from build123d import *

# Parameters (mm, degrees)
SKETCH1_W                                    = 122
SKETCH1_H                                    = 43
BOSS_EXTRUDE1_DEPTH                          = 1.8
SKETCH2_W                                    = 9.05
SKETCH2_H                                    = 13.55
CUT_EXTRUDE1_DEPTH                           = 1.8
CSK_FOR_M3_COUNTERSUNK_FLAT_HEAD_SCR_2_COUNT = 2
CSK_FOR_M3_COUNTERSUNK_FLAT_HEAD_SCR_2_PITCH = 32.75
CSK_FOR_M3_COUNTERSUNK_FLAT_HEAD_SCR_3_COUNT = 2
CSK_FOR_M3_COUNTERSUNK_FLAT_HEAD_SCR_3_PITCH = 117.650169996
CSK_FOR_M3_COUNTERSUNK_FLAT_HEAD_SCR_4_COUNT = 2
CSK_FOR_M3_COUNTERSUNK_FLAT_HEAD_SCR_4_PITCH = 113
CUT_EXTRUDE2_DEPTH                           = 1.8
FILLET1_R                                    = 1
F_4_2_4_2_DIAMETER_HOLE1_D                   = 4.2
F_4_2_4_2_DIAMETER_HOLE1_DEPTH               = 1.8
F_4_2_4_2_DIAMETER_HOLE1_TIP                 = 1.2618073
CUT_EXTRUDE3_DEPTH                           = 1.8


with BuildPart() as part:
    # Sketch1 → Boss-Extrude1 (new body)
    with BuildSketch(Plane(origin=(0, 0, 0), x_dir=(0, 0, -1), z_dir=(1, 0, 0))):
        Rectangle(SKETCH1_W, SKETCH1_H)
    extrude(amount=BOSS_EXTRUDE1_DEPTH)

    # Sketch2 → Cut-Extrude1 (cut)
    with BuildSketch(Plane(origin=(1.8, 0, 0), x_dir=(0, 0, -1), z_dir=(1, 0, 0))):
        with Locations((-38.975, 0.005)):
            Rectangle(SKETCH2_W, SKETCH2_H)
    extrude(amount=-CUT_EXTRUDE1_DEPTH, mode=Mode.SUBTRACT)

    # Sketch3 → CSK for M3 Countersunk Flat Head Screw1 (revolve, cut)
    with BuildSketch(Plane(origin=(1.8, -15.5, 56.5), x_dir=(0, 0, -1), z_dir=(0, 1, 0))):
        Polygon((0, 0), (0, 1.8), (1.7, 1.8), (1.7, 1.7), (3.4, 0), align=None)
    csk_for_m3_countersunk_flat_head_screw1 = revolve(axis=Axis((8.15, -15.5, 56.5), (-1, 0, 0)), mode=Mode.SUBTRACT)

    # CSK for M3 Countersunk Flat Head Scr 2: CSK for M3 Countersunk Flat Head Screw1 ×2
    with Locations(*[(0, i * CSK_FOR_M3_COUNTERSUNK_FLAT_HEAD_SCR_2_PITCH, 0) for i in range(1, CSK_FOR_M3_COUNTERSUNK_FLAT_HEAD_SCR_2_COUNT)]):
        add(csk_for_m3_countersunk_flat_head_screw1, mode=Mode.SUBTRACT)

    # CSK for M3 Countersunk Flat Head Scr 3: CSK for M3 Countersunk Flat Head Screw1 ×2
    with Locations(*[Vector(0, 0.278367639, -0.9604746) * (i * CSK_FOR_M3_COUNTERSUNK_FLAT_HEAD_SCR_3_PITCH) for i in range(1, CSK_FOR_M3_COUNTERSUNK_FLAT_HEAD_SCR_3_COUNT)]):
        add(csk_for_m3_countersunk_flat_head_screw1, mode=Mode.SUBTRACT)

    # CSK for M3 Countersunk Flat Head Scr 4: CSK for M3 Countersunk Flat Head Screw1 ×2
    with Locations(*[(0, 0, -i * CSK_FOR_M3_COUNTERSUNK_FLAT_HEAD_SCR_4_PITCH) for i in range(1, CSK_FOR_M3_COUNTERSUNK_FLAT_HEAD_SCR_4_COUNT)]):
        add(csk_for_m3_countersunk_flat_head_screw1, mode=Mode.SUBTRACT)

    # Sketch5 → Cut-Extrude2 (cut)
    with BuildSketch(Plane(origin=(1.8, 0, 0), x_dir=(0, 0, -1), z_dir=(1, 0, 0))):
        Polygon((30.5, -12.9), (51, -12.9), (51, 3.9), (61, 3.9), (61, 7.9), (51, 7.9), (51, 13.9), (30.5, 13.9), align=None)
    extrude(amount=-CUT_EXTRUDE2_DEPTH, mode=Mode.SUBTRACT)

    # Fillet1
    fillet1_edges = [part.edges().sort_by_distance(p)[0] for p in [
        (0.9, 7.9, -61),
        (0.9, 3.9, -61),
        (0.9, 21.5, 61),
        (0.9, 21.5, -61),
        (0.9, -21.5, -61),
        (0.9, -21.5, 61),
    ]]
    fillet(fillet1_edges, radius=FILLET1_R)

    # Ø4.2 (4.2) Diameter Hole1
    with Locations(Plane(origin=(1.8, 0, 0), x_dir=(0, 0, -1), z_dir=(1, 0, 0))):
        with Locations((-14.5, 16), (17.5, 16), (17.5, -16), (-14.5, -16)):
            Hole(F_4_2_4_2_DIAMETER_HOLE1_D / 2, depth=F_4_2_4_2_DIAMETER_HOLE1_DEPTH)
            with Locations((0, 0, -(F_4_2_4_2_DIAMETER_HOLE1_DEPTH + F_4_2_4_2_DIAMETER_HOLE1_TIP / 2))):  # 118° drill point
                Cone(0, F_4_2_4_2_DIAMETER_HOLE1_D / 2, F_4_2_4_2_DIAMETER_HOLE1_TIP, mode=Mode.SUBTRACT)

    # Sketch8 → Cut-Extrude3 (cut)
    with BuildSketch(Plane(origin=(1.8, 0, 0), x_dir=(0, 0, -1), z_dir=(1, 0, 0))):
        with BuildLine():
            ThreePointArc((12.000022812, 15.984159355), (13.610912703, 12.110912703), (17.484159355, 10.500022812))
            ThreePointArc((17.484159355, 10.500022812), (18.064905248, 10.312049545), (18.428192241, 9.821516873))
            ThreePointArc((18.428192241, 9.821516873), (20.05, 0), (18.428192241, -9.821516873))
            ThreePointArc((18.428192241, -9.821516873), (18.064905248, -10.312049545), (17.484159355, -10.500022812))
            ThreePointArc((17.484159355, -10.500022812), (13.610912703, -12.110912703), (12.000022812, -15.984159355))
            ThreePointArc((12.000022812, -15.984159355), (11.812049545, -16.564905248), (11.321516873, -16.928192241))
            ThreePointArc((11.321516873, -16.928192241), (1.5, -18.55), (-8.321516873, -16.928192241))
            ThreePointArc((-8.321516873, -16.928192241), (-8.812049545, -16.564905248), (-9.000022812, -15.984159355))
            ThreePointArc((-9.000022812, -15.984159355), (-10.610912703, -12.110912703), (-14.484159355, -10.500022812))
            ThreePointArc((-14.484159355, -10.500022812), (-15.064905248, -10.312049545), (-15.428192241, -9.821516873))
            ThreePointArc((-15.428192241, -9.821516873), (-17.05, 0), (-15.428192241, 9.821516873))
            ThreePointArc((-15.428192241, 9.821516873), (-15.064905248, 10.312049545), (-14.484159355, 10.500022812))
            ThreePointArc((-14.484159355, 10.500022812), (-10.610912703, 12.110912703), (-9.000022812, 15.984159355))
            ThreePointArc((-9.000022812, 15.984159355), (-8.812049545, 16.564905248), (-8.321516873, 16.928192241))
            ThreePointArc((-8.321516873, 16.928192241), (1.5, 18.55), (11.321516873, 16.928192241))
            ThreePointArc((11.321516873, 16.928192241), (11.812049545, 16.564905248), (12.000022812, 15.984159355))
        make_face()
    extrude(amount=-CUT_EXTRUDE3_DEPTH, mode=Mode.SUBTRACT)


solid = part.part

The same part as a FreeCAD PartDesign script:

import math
import FreeCAD as App
import Part
import Sketcher
Q = App.Units.Quantity


def edges_at(feature, points):
    """Names of the edges that pass closest to the given points."""
    edges = feature.Shape.Edges
    near = lambda p: min(range(len(edges)), key=lambda i: edges[i].distToShape(Part.Vertex(*p))[0])
    return sorted({f"Edge{near(p) + 1}" for p in points})


def add_polygon(sketch, points):
    """Adds a closed chain of lines whose ends are joined by coincident constraints."""
    first, n = sketch.GeometryCount, len(points)
    for a, b in zip(points, points[1:] + points[:1]):
        sketch.addGeometry(Part.LineSegment(App.Vector(*a, 0), App.Vector(*b, 0)), False)
    for i in range(n):
        sketch.addConstraint(Sketcher.Constraint("Coincident", first + i, 2, first + (i + 1) % n, 1))

doc = App.newDocument("Part")
body = doc.addObject("PartDesign::Body", "Body")

# Sketch on YZ plane
sketch1 = body.newObject("Sketcher::SketchObject", "Sketch")
sketch1.AttachmentSupport = (doc.getObject("YZ_Plane"), [""])
sketch1.MapMode = "FlatFace"
add_polygon(sketch1, [(22, 61), (-22, 61), (-22, -61), (22, -61)])  # lines 0-3
sketch1.addConstraint([
    Sketcher.Constraint("Horizontal", 0),
    Sketcher.Constraint("Vertical", 1),
    Sketcher.Constraint("Horizontal", 2),
    Sketcher.Constraint("Vertical", 3),
    Sketcher.Constraint("Symmetric", 0, 2, 2, 2, -1, 1),
    Sketcher.Constraint("DistanceX", 0, 2, 0, 1, Q("43 mm")),
    Sketcher.Constraint("DistanceY", 1, 2, 1, 1, Q("122 mm")),
])
pad1 = body.newObject("PartDesign::Pad", "Pad")
pad1.Profile = sketch1
pad1.Length = 1.8

# Sketch on YZ plane
sketch2 = body.newObject("Sketcher::SketchObject", "Sketch001")
sketch2.AttachmentSupport = (doc.getObject("YZ_Plane"), [""])
sketch2.MapMode = "FlatFace"
sketch2.AttachmentOffset = App.Placement(App.Vector(0, 0, 1.8), App.Rotation())
add_polygon(sketch2, [(7, 44), (-7, 44), (-7, 34), (7, 34)])  # lines 0-3
sketch2.addConstraint([
    Sketcher.Constraint("Horizontal", 0),
    Sketcher.Constraint("Vertical", 1),
    Sketcher.Constraint("Horizontal", 2),
    Sketcher.Constraint("Vertical", 3),
    Sketcher.Constraint("DistanceX", 0, 2, 0, 1, Q("13.55 mm")),
    Sketcher.Constraint("DistanceY", 1, 2, 1, 1, Q("9.05 mm")),
    Sketcher.Constraint("DistanceY", -1, 1, 0, 2, Q("43.5 mm")),
    Sketcher.Constraint("DistanceX", 0, 2, -1, 1, Q("6.77 mm")),
])
pocket1 = body.newObject("PartDesign::Pocket", "Pocket")
pocket1.Profile = sketch2
pocket1.Length = 1.8

# Sketch on XZ plane
sketch3 = body.newObject("Sketcher::SketchObject", "Sketch002")
sketch3.AttachmentSupport = (doc.getObject("XZ_Plane"), [""])
sketch3.MapMode = "FlatFace"
sketch3.AttachmentOffset = App.Placement(App.Vector(0, 0, 15.5), App.Rotation())
add_polygon(sketch3, [(0, 56.5), (1.8, 56.5), (1.8, 53.1), (0.1, 54.8), (0, 54.8)])  # lines 0-4
sketch3.addGeometry(Part.LineSegment(App.Vector(1.8, 56.5, 0), App.Vector(0, 56.5, 0)), True)  # axis
sketch3.addConstraint([
    Sketcher.Constraint("Horizontal", 0),
    Sketcher.Constraint("Vertical", 1),
    Sketcher.Constraint("Horizontal", 3),
    Sketcher.Constraint("Vertical", 4),
    Sketcher.Constraint("Horizontal", 5),
    Sketcher.Constraint("Coincident", 5, 1, 0, 2),
    Sketcher.Constraint("PointOnObject", 3, 2, -2),
    Sketcher.Constraint("PointOnObject", 5, 2, -2),
    Sketcher.Constraint("Angle", 2, Q("135 deg")),
    Sketcher.Constraint("DistanceX", 0, 1, 0, 2, Q("1.8 mm")),
    Sketcher.Constraint("DistanceX", 3, 2, 3, 1, Q("0.1 mm")),
    Sketcher.Constraint("DistanceY", 1, 2, 1, 1, Q("3.4 mm")),
    Sketcher.Constraint("DistanceY", -1, 1, 0, 2, Q("56.5 mm")),
])
groove = body.newObject("PartDesign::Groove", "Groove")
groove.Profile = sketch3
groove.ReferenceAxis = (sketch3, ["Axis0"])
groove.Angle = 360
doc.recompute()

linearpattern = body.newObject("PartDesign::LinearPattern", "LinearPattern")
linearpattern.Originals = [groove]
linearpattern.Direction = (doc.getObject("Y_Axis"), [""])
linearpattern.Mode = "offset"
linearpattern.Offset = 32.75
linearpattern.Occurrences = 2
body.Tip = linearpattern
doc.recompute()

datumline = body.newObject("PartDesign::Line", "DatumLine")
datumline.Placement = App.Placement(App.Vector(0, 0, 0), App.Rotation(App.Vector(0, 0, 1), App.Vector(0, 0.278367639, -0.9604746)))
linearpattern2 = body.newObject("PartDesign::LinearPattern", "LinearPattern001")
linearpattern2.Originals = [groove]
linearpattern2.Direction = (datumline, [""])
linearpattern2.Mode = "offset"
linearpattern2.Offset = 117.65017
linearpattern2.Occurrences = 2
body.Tip = linearpattern2
doc.recompute()

linearpattern3 = body.newObject("PartDesign::LinearPattern", "LinearPattern002")
linearpattern3.Originals = [groove]
linearpattern3.Direction = (doc.getObject("Z_Axis"), [""])
linearpattern3.Mode = "offset"
linearpattern3.Offset = 113
linearpattern3.Occurrences = 2
linearpattern3.Reversed = True
body.Tip = linearpattern3

# Sketch on YZ plane
sketch4 = body.newObject("Sketcher::SketchObject", "Sketch003")
sketch4.AttachmentSupport = (doc.getObject("YZ_Plane"), [""])
sketch4.MapMode = "FlatFace"
sketch4.AttachmentOffset = App.Placement(App.Vector(0, 0, 1.8), App.Rotation())
add_polygon(sketch4, [(-12.9, -30.5), (-12.9, -51), (3.9, -51), (3.9, -61), (7.9, -61), (7.9, -51), (13.9, -51), (13.9, -30.5)])  # lines 0-7
sketch4.addConstraint([
    Sketcher.Constraint("Vertical", 0),
    Sketcher.Constraint("Horizontal", 1),
    Sketcher.Constraint("Vertical", 2),
    Sketcher.Constraint("Horizontal", 3),
    Sketcher.Constraint("Vertical", 4),
    Sketcher.Constraint("Horizontal", 5),
    Sketcher.Constraint("Vertical", 6),
    Sketcher.Constraint("Horizontal", 7),
    Sketcher.Constraint("Horizontal", 1, 2, 4, 2),
    Sketcher.Constraint("DistanceX", 3, 1, 3, 2, Q("4 mm")),
    Sketcher.Constraint("DistanceX", 5, 1, 5, 2, Q("6 mm")),
    Sketcher.Constraint("DistanceY", 2, 2, 2, 1, Q("10 mm")),
    Sketcher.Constraint("DistanceX", 1, 1, 1, 2, Q("16.8 mm")),
    Sketcher.Constraint("DistanceY", 0, 2, 0, 1, Q("20.5 mm")),
    Sketcher.Constraint("DistanceY", 0, 2, -1, 1, Q("51 mm")),
    Sketcher.Constraint("DistanceX", 0, 2, -1, 1, Q("12.9 mm")),
])
pocket2 = body.newObject("PartDesign::Pocket", "Pocket001")
pocket2.Profile = sketch4
pocket2.Length = 1.8
doc.recompute()

fillet = body.newObject("PartDesign::Fillet", "Fillet")
fillet.Base = (pocket2, edges_at(pocket2, [
    (0.9, 7.9, -61),
    (0.9, 3.9, -61),
    (0.9, 21.5, 61),
    (0.9, 21.5, -61),
    (0.9, -21.5, -61),
    (0.9, -21.5, 61),
]))
fillet.Radius = 1

# Sketch on YZ plane
sketch5 = body.newObject("Sketcher::SketchObject", "Sketch004")
sketch5.AttachmentSupport = (doc.getObject("YZ_Plane"), [""])
sketch5.MapMode = "FlatFace"
sketch5.AttachmentOffset = App.Placement(App.Vector(0, 0, 1.8), App.Rotation())
sketch5.addGeometry([
    Part.Circle(App.Vector(16, 14.5, 0), App.Vector(0, 0, 1), 2.1),
    Part.Circle(App.Vector(16, -17.5, 0), App.Vector(0, 0, 1), 2.1),
    Part.Circle(App.Vector(-16, -17.5, 0), App.Vector(0, 0, 1), 2.1),
    Part.Circle(App.Vector(-16, 14.5, 0), App.Vector(0, 0, 1), 2.1),
], False)
sketch5.addConstraint([
    Sketcher.Constraint("Equal", 0, 1),
    Sketcher.Constraint("Equal", 1, 2),
    Sketcher.Constraint("Equal", 2, 3),
    Sketcher.Constraint("Symmetric", 1, 3, 2, 3, -2),
    Sketcher.Constraint("Symmetric", 0, 3, 3, 3, -2),
    Sketcher.Constraint("Vertical", 0, 3, 1, 3),
    Sketcher.Constraint("Diameter", 0, Q("4.2 mm")),
    Sketcher.Constraint("DistanceX", -1, 1, 0, 3, Q("16 mm")),
    Sketcher.Constraint("DistanceY", 1, 3, 0, 3, Q("32 mm")),
    Sketcher.Constraint("DistanceY", -1, 1, 0, 3, Q("14.5 mm")),
])
doc.recompute()
hole = body.newObject("PartDesign::Hole", "Hole")
hole.Profile = sketch5
hole.ThreadType = "None"
hole.Diameter = 4.2
hole.DepthType = "Dimension"
hole.Depth = 1.8
hole.DrillPoint = "Angled"
hole.DrillPointAngle = 118

# Sketch on YZ plane
sketch6 = body.newObject("Sketcher::SketchObject", "Sketch005")
sketch6.AttachmentSupport = (doc.getObject("YZ_Plane"), [""])
sketch6.MapMode = "FlatFace"
sketch6.AttachmentOffset = App.Placement(App.Vector(0, 0, 1.8), App.Rotation())
sketch6.addGeometry([
    Part.ArcOfCircle(Part.Circle(App.Vector(16, -17.5, 0), App.Vector(0, 0, 1), 5.5), math.radians(90.165019), math.radians(179.834981)),  # 0
    Part.ArcOfCircle(Part.Circle(App.Vector(15.981279, -11.000027, 0), App.Vector(0, 0, 1), 1), math.radians(-89.834981), math.radians(-18.753053)),  # 1
    Part.ArcOfCircle(Part.Circle(App.Vector(-12, -1.5, 0), App.Vector(0, 0, 1), 30.55), math.radians(-18.753053), math.radians(18.753053)),  # 2
    Part.ArcOfCircle(Part.Circle(App.Vector(15.981279, 8.000027, 0), App.Vector(0, 0, 1), 1), math.radians(18.753053), math.radians(89.834981)),  # 3
    Part.ArcOfCircle(Part.Circle(App.Vector(16, 14.5, 0), App.Vector(0, 0, 1), 5.5), math.radians(-179.834981), math.radians(-90.165019)),  # 4
    Part.ArcOfCircle(Part.Circle(App.Vector(9.500027, 14.481279, 0), App.Vector(0, 0, 1), 1), math.radians(0.165019), math.radians(71.246947)),  # 5
    Part.ArcOfCircle(Part.Circle(App.Vector(0, -13.5, 0), App.Vector(0, 0, 1), 30.55), math.radians(71.246947), math.radians(108.753053)),  # 6
    Part.ArcOfCircle(Part.Circle(App.Vector(-9.500027, 14.481279, 0), App.Vector(0, 0, 1), 1), math.radians(108.753053), math.radians(179.834981)),  # 7
    Part.ArcOfCircle(Part.Circle(App.Vector(-16, 14.5, 0), App.Vector(0, 0, 1), 5.5), math.radians(-89.834981), math.radians(-0.165019)),  # 8
    Part.ArcOfCircle(Part.Circle(App.Vector(-15.981279, 8.000027, 0), App.Vector(0, 0, 1), 1), math.radians(90.165019), math.radians(161.246947)),  # 9
    Part.ArcOfCircle(Part.Circle(App.Vector(12, -1.5, 0), App.Vector(0, 0, 1), 30.55), math.radians(161.246947), math.radians(198.753053)),  # 10
    Part.ArcOfCircle(Part.Circle(App.Vector(-15.981279, -11.000027, 0), App.Vector(0, 0, 1), 1), math.radians(-161.246947), math.radians(-90.165019)),  # 11
    Part.ArcOfCircle(Part.Circle(App.Vector(-16, -17.5, 0), App.Vector(0, 0, 1), 5.5), math.radians(0.165019), math.radians(89.834981)),  # 12
    Part.ArcOfCircle(Part.Circle(App.Vector(-9.500027, -17.481279, 0), App.Vector(0, 0, 1), 1), math.radians(-179.834981), math.radians(-108.753053)),  # 13
    Part.ArcOfCircle(Part.Circle(App.Vector(0, 10.5, 0), App.Vector(0, 0, 1), 30.55), math.radians(-108.753053), math.radians(-71.246947)),  # 14
    Part.ArcOfCircle(Part.Circle(App.Vector(9.500027, -17.481279, 0), App.Vector(0, 0, 1), 1), math.radians(-71.246947), math.radians(-0.165019)),  # 15
], False)
sketch6.addConstraint([
    Sketcher.Constraint("Tangent", 0, 1, 1, 1),
    Sketcher.Constraint("Tangent", 1, 2, 2, 1),
    Sketcher.Constraint("Tangent", 2, 2, 3, 1),
    Sketcher.Constraint("Tangent", 3, 2, 4, 2),
    Sketcher.Constraint("Tangent", 4, 1, 5, 1),
    Sketcher.Constraint("Tangent", 5, 2, 6, 1),
    Sketcher.Constraint("Tangent", 6, 2, 7, 1),
    Sketcher.Constraint("Tangent", 7, 2, 8, 2),
    Sketcher.Constraint("Tangent", 8, 1, 9, 1),
    Sketcher.Constraint("Tangent", 9, 2, 10, 1),
    Sketcher.Constraint("Tangent", 10, 2, 11, 1),
    Sketcher.Constraint("Tangent", 11, 2, 12, 2),
    Sketcher.Constraint("Tangent", 12, 1, 13, 1),
    Sketcher.Constraint("Tangent", 13, 2, 14, 1),
    Sketcher.Constraint("Tangent", 14, 2, 15, 1),
    Sketcher.Constraint("Tangent", 15, 2, 0, 2),
    Sketcher.Constraint("Equal", 1, 3),
    Sketcher.Constraint("Equal", 0, 4),
    Sketcher.Constraint("Equal", 3, 5),
    Sketcher.Constraint("Equal", 2, 6),
    Sketcher.Constraint("Equal", 5, 7),
    Sketcher.Constraint("Equal", 4, 8),
    Sketcher.Constraint("Equal", 7, 9),
    Sketcher.Constraint("Equal", 6, 10),
    Sketcher.Constraint("Equal", 9, 11),
    Sketcher.Constraint("Equal", 8, 12),
    Sketcher.Constraint("Equal", 11, 13),
    Sketcher.Constraint("Equal", 10, 14),
    Sketcher.Constraint("Equal", 13, 15),
    Sketcher.Constraint("Symmetric", 5, 3, 7, 3, -2),
    Sketcher.Constraint("Symmetric", 3, 3, 9, 3, -2),
    Sketcher.Constraint("Symmetric", 1, 3, 11, 3, -2),
    Sketcher.Constraint("Symmetric", 13, 3, 15, 3, -2),
    Sketcher.Constraint("Vertical", 1, 3, 3, 3),
    Sketcher.Constraint("Vertical", 0, 3, 4, 3),
    Sketcher.Constraint("Vertical", 7, 3, 13, 3),
    Sketcher.Constraint("Radius", 1, Q("1 mm")),
    Sketcher.Constraint("Radius", 0, Q("5.5 mm")),
    Sketcher.Constraint("Radius", 2, Q("30.55 mm")),
    Sketcher.Constraint("DistanceX", -1, 1, 0, 3, Q("16 mm")),
    Sketcher.Constraint("DistanceX", 2, 3, -1, 1, Q("12 mm")),
    Sketcher.Constraint("DistanceY", 0, 3, 2, 3, Q("16 mm")),
    Sketcher.Constraint("DistanceY", 0, 3, 6, 3, Q("4 mm")),
    Sketcher.Constraint("DistanceY", 0, 3, -1, 1, Q("17.5 mm")),
])
pocket3 = body.newObject("PartDesign::Pocket", "Pocket002")
pocket3.Profile = sketch6
pocket3.Length = 1.8

doc.recompute()
